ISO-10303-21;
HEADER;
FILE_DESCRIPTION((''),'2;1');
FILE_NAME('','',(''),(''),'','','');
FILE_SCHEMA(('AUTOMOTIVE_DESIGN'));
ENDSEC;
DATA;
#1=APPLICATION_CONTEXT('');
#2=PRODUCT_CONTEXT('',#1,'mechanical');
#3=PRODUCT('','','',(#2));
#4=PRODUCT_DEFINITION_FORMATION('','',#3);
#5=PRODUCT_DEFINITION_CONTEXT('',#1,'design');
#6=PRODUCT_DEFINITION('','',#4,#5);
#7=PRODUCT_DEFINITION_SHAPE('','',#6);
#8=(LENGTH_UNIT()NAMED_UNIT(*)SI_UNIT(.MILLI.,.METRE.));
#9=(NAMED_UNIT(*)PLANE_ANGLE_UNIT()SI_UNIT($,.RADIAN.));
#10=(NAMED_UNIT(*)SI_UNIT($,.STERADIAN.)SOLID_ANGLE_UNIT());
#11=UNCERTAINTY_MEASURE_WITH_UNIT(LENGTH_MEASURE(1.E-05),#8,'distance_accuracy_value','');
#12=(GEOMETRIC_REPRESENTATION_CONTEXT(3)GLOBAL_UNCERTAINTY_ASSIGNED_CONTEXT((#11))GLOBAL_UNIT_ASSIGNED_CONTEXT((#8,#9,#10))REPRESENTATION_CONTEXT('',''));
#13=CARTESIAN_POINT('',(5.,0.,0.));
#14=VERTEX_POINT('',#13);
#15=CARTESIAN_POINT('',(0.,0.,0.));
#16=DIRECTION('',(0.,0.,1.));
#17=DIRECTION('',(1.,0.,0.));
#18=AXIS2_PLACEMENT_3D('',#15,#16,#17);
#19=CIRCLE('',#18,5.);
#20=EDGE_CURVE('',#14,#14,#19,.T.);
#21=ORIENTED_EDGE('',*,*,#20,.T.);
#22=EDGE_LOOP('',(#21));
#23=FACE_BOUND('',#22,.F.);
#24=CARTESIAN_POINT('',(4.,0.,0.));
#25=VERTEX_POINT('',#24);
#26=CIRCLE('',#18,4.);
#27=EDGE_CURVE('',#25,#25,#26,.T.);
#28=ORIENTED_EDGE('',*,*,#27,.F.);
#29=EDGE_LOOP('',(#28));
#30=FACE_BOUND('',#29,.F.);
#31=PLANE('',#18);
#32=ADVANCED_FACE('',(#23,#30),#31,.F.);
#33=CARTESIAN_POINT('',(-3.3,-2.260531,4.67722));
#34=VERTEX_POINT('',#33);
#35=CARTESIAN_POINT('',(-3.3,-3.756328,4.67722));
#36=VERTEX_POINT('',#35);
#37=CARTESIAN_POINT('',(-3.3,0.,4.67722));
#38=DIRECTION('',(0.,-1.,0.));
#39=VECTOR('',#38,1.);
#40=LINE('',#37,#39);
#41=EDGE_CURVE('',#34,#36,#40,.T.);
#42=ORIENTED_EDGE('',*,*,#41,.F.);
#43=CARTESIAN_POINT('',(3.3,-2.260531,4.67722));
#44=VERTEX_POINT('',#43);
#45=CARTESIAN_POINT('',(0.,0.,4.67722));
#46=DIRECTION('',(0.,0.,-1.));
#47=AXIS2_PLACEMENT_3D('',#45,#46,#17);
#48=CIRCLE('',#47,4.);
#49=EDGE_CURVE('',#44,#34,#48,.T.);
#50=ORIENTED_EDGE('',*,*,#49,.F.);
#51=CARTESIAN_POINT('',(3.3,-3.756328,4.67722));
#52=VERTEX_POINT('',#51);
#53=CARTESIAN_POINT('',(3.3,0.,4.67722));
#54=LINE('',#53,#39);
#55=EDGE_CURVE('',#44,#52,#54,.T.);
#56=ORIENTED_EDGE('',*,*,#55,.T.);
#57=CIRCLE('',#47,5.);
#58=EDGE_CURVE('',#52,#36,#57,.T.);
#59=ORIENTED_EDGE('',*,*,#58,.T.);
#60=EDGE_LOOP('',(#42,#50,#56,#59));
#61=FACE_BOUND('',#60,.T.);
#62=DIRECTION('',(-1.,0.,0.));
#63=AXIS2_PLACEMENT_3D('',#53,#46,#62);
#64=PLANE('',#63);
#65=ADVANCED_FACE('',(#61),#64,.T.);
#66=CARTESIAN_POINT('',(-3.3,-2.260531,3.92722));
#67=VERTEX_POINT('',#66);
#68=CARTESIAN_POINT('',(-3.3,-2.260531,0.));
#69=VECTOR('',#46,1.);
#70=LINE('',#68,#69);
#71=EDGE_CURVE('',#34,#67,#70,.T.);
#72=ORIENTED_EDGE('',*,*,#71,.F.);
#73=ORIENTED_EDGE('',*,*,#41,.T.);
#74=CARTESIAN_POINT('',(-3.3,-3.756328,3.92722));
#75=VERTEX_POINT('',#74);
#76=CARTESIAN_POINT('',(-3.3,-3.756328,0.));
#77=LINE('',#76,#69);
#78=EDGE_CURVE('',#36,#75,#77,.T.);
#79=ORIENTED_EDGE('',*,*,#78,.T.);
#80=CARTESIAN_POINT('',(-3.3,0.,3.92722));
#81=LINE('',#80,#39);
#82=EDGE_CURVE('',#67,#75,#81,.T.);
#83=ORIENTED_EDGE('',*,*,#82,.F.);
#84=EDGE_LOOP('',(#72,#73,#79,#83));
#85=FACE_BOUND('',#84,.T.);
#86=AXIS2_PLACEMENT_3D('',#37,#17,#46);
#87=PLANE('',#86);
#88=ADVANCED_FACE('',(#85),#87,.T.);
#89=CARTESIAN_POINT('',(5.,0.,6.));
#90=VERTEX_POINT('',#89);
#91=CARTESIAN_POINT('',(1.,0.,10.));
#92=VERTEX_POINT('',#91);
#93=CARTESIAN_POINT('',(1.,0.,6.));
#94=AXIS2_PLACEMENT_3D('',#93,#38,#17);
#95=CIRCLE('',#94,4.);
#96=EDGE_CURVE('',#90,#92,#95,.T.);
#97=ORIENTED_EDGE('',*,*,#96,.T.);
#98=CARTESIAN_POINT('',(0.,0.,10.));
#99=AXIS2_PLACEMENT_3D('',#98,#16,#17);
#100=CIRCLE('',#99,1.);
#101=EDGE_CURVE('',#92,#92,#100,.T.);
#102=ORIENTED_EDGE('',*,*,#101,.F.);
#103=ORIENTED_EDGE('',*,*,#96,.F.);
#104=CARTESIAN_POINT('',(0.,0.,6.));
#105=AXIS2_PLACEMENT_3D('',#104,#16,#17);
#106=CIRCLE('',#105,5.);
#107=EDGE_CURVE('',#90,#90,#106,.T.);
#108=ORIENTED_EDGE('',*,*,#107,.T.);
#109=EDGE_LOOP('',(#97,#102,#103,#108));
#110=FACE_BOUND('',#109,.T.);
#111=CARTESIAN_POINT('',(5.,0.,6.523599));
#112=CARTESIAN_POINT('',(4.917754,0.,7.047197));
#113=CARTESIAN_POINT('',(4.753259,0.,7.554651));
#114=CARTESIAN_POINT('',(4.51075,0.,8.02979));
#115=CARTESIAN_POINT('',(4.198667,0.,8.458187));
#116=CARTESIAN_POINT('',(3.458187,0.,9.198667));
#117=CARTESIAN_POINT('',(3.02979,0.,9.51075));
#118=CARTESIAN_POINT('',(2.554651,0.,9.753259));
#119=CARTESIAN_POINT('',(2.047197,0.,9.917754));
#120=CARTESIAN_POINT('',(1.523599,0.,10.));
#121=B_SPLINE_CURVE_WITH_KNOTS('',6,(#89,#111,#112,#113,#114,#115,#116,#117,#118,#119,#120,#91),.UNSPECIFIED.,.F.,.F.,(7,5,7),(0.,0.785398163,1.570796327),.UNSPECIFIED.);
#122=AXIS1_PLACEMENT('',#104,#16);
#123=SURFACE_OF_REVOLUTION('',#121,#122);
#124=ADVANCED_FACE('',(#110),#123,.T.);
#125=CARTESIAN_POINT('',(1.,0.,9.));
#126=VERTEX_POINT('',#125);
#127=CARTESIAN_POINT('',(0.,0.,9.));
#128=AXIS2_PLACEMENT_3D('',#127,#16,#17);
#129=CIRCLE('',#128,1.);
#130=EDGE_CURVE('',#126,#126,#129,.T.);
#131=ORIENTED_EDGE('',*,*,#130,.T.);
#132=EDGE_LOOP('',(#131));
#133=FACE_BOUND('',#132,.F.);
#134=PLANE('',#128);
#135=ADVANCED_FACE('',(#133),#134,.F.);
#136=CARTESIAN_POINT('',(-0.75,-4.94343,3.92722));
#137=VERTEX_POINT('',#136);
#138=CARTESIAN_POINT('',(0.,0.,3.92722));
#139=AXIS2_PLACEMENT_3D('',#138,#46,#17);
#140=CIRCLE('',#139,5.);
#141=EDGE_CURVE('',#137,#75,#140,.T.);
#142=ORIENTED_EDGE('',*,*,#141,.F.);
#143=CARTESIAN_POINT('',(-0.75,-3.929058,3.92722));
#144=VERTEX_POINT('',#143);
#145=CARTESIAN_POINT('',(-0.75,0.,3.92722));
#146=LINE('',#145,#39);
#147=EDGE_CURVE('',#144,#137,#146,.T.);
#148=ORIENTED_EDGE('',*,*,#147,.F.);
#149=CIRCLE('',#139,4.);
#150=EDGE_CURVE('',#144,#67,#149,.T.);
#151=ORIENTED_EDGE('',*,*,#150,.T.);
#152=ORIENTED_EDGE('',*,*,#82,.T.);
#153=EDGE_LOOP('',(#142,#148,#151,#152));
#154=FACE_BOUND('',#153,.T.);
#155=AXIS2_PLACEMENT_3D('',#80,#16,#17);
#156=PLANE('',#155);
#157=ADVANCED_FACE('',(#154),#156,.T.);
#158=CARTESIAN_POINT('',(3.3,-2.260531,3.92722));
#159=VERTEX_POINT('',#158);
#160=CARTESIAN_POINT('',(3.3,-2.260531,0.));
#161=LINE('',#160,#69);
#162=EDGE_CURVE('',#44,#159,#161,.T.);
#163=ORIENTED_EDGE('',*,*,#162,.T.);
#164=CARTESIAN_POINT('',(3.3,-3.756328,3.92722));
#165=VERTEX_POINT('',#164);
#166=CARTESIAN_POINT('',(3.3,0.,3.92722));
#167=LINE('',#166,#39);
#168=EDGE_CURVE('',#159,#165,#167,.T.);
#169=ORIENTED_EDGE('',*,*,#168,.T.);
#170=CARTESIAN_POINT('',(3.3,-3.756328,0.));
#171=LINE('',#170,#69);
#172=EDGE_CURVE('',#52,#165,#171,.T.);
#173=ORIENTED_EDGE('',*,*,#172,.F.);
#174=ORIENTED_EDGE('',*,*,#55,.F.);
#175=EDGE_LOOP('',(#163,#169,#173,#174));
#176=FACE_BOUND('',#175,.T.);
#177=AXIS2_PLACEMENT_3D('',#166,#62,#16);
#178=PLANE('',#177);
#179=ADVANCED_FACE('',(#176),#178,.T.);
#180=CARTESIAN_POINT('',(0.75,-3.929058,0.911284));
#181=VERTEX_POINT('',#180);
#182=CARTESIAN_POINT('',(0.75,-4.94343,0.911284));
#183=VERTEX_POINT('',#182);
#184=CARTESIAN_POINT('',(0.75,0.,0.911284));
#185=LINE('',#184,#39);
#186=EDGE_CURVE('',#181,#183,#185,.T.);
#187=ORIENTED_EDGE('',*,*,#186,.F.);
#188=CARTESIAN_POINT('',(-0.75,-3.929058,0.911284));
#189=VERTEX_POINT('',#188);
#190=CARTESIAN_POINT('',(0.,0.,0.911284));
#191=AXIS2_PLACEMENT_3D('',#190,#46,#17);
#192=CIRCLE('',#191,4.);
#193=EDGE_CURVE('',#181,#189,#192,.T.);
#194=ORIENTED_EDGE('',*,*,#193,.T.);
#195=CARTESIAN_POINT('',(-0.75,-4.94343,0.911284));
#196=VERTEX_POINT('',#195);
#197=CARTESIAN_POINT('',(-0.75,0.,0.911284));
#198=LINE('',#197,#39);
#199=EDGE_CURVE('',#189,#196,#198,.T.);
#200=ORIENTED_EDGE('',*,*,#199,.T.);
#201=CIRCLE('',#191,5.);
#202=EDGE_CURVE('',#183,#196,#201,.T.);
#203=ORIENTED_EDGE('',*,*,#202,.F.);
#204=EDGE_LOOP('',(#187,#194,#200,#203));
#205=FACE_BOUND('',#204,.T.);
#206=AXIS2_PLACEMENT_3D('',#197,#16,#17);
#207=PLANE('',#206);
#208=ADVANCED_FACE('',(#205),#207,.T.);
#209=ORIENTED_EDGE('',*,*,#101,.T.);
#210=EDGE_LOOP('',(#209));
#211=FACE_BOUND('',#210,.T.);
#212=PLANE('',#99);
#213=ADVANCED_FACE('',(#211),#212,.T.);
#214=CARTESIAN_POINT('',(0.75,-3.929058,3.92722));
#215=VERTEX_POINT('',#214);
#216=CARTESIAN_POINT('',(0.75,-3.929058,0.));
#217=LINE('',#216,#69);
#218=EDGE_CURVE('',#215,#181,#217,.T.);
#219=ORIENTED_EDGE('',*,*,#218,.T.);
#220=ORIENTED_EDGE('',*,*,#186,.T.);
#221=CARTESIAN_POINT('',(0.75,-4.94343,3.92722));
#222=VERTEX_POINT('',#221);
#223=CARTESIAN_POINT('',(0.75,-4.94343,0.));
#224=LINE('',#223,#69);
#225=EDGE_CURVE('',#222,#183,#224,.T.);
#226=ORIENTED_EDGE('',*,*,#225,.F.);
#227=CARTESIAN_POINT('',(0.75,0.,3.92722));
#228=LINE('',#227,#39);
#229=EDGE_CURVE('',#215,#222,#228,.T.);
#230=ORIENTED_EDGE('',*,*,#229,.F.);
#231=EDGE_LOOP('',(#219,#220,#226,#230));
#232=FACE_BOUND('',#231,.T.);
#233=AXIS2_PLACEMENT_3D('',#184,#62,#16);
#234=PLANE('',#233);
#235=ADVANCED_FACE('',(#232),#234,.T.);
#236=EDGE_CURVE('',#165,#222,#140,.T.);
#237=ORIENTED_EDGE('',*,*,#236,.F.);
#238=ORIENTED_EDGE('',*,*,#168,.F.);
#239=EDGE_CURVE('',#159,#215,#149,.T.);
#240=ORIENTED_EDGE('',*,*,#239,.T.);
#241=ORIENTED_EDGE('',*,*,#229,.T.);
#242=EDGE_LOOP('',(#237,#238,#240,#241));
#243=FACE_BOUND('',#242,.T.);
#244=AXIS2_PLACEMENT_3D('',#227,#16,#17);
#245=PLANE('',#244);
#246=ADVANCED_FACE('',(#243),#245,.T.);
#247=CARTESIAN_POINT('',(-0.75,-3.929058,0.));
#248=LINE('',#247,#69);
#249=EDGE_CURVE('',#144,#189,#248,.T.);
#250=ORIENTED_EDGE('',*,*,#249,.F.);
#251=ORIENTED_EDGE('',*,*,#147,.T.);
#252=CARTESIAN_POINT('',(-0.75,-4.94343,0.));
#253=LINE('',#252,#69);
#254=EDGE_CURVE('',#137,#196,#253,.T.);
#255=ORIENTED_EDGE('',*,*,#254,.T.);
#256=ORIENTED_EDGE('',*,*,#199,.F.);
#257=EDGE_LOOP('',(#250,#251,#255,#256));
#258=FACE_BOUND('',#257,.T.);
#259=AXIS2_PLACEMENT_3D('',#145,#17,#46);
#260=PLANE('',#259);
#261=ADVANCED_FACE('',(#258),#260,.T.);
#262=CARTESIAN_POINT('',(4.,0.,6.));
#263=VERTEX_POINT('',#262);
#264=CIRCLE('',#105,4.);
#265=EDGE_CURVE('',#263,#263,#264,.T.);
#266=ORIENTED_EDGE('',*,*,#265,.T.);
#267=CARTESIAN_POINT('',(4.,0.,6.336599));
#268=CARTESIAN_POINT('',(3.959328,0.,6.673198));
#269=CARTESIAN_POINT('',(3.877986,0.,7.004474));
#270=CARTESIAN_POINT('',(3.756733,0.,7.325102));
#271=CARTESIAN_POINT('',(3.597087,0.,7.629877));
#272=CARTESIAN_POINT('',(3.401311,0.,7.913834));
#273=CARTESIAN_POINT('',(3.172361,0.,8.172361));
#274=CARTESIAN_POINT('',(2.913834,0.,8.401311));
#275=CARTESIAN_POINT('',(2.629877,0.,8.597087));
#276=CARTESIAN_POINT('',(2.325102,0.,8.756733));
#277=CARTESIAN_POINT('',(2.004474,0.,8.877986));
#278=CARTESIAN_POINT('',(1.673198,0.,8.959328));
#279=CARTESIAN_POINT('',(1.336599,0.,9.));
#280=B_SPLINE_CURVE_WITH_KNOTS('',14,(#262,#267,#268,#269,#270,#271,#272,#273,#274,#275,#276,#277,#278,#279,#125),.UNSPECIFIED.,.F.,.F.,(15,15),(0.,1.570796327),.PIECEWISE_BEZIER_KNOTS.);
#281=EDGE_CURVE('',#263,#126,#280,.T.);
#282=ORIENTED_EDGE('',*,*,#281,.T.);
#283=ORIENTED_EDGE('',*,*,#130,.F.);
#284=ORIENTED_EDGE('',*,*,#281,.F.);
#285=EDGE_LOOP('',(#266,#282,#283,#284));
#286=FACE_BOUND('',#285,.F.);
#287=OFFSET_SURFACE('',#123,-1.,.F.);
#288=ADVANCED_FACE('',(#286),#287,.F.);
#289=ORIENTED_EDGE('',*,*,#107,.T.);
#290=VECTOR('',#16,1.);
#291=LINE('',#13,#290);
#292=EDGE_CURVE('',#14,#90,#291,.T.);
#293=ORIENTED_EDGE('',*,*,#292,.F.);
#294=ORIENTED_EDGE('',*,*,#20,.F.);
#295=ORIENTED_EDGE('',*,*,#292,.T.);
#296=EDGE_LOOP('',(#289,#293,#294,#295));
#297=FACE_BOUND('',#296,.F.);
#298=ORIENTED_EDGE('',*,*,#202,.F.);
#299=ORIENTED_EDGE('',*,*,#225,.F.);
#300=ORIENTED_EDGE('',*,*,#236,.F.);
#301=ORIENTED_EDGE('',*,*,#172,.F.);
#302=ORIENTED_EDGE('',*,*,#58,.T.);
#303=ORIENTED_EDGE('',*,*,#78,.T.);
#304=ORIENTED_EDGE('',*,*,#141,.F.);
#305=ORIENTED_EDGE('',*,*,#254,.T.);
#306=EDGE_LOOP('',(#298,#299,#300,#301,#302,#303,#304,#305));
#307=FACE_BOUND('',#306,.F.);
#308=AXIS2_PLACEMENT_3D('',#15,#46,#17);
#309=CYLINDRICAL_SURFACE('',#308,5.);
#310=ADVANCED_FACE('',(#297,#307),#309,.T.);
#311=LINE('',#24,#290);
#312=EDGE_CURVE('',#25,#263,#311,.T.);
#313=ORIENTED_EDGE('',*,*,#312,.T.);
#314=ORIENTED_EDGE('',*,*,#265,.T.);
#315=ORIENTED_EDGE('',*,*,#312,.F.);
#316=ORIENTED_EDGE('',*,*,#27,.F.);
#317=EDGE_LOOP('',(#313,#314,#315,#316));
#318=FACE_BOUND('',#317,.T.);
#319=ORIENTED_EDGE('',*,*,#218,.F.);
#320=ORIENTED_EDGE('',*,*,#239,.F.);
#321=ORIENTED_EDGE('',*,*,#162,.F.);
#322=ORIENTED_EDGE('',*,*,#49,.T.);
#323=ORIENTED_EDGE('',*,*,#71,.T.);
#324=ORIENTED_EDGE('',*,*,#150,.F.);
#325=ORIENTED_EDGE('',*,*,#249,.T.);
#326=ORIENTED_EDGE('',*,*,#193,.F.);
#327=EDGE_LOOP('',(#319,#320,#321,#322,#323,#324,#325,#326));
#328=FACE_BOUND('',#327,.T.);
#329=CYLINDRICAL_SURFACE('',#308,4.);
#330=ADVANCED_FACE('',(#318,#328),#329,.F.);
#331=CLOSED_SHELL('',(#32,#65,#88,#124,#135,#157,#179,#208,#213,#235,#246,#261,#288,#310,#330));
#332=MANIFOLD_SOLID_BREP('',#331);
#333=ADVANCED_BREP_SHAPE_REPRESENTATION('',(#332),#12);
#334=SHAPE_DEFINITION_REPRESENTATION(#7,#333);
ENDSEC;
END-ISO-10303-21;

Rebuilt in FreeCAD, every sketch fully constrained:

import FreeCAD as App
import Part
import Sketcher

V = App.Vector


def edges_at(feature, points):
    """Names of the edges that pass closest to the given points."""
    edges = feature.Shape.Edges
    near = lambda p: min(range(len(edges)), key=lambda i: edges[i].distToShape(Part.Vertex(*p))[0])
    return sorted({f"Edge{near(p) + 1}" for p in points})


def faces_at(feature, points):
    """Names of the faces that lie closest to the given points."""
    faces = feature.Shape.Faces
    near = lambda p: min(range(len(faces)), key=lambda i: faces[i].distToShape(Part.Vertex(*p))[0])
    return sorted({f"Face{near(p) + 1}" for p in points})


def add_polygon(sketch, points):
    """Adds a closed chain of lines whose ends are joined by coincident constraints."""
    first, n = sketch.GeometryCount, len(points)
    for a, b in zip(points, points[1:] + points[:1]):
        sketch.addGeometry(Part.LineSegment(App.Vector(*a, 0), App.Vector(*b, 0)), False)
    for i in range(n):
        sketch.addConstraint(Sketcher.Constraint("Coincident", first + i, 2, first + (i + 1) % n, 1))

doc = App.newDocument("Part")
body = doc.addObject("PartDesign::Body", "Body")

sketch1 = doc.addObject("Sketcher::SketchObject", "Sketch")
body.addObject(sketch1)
sketch1.AttachmentSupport = (doc.XY_Plane, [""])
sketch1.MapMode = "FlatFace"
sketch1.addGeometry(Part.Circle(V(0, 0, 0), V(0, 0, 1), 5), False)
sketch1.addConstraint(Sketcher.Constraint("Coincident", 0, 3, -1, 1))
sketch1.addConstraint(Sketcher.Constraint("Diameter", 0, 10.0))
pad1 = doc.addObject("PartDesign::Pad", "Pad")
body.addObject(pad1)
pad1.Profile = sketch1
pad1.Length = 10
doc.recompute()

fillet = doc.addObject("PartDesign::Fillet", "Fillet")
body.addObject(fillet)
fillet.Base = (pad1, edges_at(pad1, [(-5, 0, 10)]))
fillet.Radius = 4
doc.recompute()

thickness = doc.addObject("PartDesign::Thickness", "Thickness")
body.addObject(thickness)
thickness.Base = (fillet, faces_at(fillet, [(0, 0, 0)]))
thickness.Value = 1
thickness.Reversed = True
thickness.Join = "Arc"

sketch2 = doc.addObject("Sketcher::SketchObject", "Sketch001")
body.addObject(sketch2)
sketch2.AttachmentSupport = (doc.XZ_Plane, [""])
sketch2.MapMode = "FlatFace"
add_polygon(sketch2, [(3.3, 4.7), (-3.3, 4.7), (-3.3, 3.9), (-0.8, 3.9), (-0.8, 0.9), (0.8, 0.9), (0.8, 3.9), (3.3, 3.9)])
sketch2.addConstraint(Sketcher.Constraint("Horizontal", 0))
sketch2.addConstraint(Sketcher.Constraint("Vertical", 1))
sketch2.addConstraint(Sketcher.Constraint("Horizontal", 2))
sketch2.addConstraint(Sketcher.Constraint("Vertical", 3))
sketch2.addConstraint(Sketcher.Constraint("Horizontal", 4))
sketch2.addConstraint(Sketcher.Constraint("Vertical", 5))
sketch2.addConstraint(Sketcher.Constraint("Horizontal", 6))
sketch2.addConstraint(Sketcher.Constraint("Vertical", 7))
sketch2.addConstraint(Sketcher.Constraint("Symmetric", 2, 2, 5, 2, -2))
sketch2.addConstraint(Sketcher.Constraint("Equal", 2, 6))
sketch2.addConstraint(Sketcher.Constraint("DistanceX", 0, 2, 0, 1, 6.6))
sketch2.addConstraint(Sketcher.Constraint("DistanceX", 4, 1, 4, 2, 1.5))
sketch2.addConstraint(Sketcher.Constraint("DistanceY", 1, 2, 1, 1, 0.75))
sketch2.addConstraint(Sketcher.Constraint("DistanceY", 3, 2, 3, 1, 3.015936))
sketch2.addConstraint(Sketcher.Constraint("DistanceY", -1, 1, 0, 2, 4.67722))
pocket1 = doc.addObject("PartDesign::Pocket", "Pocket")
body.addObject(pocket1)
pocket1.Profile = sketch2
pocket1.Length = 25
pocket1.Reversed = True

doc.recompute()
